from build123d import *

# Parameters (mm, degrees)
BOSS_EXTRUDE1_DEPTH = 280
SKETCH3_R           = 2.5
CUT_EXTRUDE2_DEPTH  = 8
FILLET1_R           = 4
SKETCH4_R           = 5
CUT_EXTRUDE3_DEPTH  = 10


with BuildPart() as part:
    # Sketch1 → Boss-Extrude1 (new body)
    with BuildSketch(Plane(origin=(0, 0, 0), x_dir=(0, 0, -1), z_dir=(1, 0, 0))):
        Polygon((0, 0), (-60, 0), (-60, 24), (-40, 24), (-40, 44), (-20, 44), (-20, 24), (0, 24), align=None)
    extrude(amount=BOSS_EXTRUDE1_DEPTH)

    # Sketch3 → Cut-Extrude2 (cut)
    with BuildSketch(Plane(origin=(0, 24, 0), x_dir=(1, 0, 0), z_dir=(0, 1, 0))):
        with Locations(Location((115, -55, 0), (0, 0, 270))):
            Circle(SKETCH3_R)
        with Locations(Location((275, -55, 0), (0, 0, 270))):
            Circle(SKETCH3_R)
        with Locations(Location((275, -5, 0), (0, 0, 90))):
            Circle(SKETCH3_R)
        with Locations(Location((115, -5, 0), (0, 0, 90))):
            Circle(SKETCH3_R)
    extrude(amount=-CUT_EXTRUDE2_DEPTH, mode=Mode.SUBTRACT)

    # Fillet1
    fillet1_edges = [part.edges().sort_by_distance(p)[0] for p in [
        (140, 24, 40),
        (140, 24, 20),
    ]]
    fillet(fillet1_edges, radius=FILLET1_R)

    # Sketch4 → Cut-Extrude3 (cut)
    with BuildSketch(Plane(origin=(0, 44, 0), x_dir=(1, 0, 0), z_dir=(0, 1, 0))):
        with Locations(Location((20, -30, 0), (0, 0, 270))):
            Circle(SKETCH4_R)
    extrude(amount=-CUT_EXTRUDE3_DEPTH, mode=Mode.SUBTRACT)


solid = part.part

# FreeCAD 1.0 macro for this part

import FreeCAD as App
import Part
import Sketcher


def edges_at(feature, points):
    """Names of the edges that pass closest to the given points."""
    edges = feature.Shape.Edges
    near = lambda p: min(range(len(edges)), key=lambda i: edges[i].distToShape(Part.Vertex(*p))[0])
    return sorted({f"Edge{near(p) + 1}" for p in points})

doc = App.newDocument("Part")
body = doc.addObject("PartDesign::Body", "Body")

sketch1 = body.newObject("Sketcher::SketchObject", "Sketch")
sketch1.AttachmentSupport = (doc.getObject("YZ_Plane"), [""])
sketch1.MapMode = "FlatFace"
sketch1.addGeometry(Part.LineSegment(App.Vector(0, 60, 0), App.Vector(0, 0, 0)), False)
sketch1.addGeometry(Part.LineSegment(App.Vector(0, 0, 0), App.Vector(24, 0, 0)), False)
sketch1.addGeometry(Part.LineSegment(App.Vector(24, 0, 0), App.Vector(24, 20, 0)), False)
sketch1.addGeometry(Part.LineSegment(App.Vector(24, 20, 0), App.Vector(44, 20, 0)), False)
sketch1.addGeometry(Part.LineSegment(App.Vector(44, 20, 0), App.Vector(44, 40, 0)), False)
sketch1.addGeometry(Part.LineSegment(App.Vector(44, 40, 0), App.Vector(24, 40, 0)), False)
sketch1.addGeometry(Part.LineSegment(App.Vector(24, 40, 0), App.Vector(24, 60, 0)), False)
sketch1.addGeometry(Part.LineSegment(App.Vector(24, 60, 0), App.Vector(0, 60, 0)), False)
sketch1.addConstraint(Sketcher.Constraint("Coincident", 0, 2, 1, 1))
sketch1.addConstraint(Sketcher.Constraint("Coincident", 1, 2, 2, 1))
sketch1.addConstraint(Sketcher.Constraint("Coincident", 2, 2, 3, 1))
sketch1.addConstraint(Sketcher.Constraint("Coincident", 3, 2, 4, 1))
sketch1.addConstraint(Sketcher.Constraint("Coincident", 4, 2, 5, 1))
sketch1.addConstraint(Sketcher.Constraint("Coincident", 5, 2, 6, 1))
sketch1.addConstraint(Sketcher.Constraint("Coincident", 6, 2, 7, 1))
sketch1.addConstraint(Sketcher.Constraint("Coincident", 7, 2, 0, 1))
sketch1.addConstraint(Sketcher.Constraint("Vertical", 0))
sketch1.addConstraint(Sketcher.Constraint("Horizontal", 1))
sketch1.addConstraint(Sketcher.Constraint("Vertical", 2))
sketch1.addConstraint(Sketcher.Constraint("Horizontal", 3))
sketch1.addConstraint(Sketcher.Constraint("Vertical", 4))
sketch1.addConstraint(Sketcher.Constraint("Horizontal", 5))
sketch1.addConstraint(Sketcher.Constraint("Vertical", 6))
sketch1.addConstraint(Sketcher.Constraint("Horizontal", 7))
sketch1.addConstraint(Sketcher.Constraint("Coincident", 0, 2, -1, 1))
sketch1.addConstraint(Sketcher.Constraint("Vertical", 2, 2, 5, 2))
sketch1.addConstraint(Sketcher.Constraint("Equal", 5, 2))
sketch1.addConstraint(Sketcher.Constraint("Equal", 2, 4))
sketch1.addConstraint(Sketcher.Constraint("Equal", 4, 6))
sketch1.addConstraint(Sketcher.Constraint("DistanceX", 1, 1, 1, 2, 24.0))
sketch1.addConstraint(Sketcher.Constraint("DistanceX", 3, 1, 3, 2, 20.0))
pad1 = body.newObject("PartDesign::Pad", "Pad")
pad1.Profile = sketch1
pad1.Length = 280

sketch2 = body.newObject("Sketcher::SketchObject", "Sketch001")
sketch2.AttachmentSupport = (doc.getObject("XZ_Plane"), [""])
sketch2.MapMode = "FlatFace"
sketch2.AttachmentOffset = App.Placement(App.Vector(0, 0, -24), App.Rotation())
sketch2.addGeometry(Part.Circle(App.Vector(115, 55, 0), App.Vector(0, 0, 1), 2.5), False)
sketch2.addGeometry(Part.Circle(App.Vector(275, 55, 0), App.Vector(0, 0, 1), 2.5), False)
sketch2.addGeometry(Part.Circle(App.Vector(275, 5, 0), App.Vector(0, 0, 1), 2.5), False)
sketch2.addGeometry(Part.Circle(App.Vector(115, 5, 0), App.Vector(0, 0, 1), 2.5), False)
sketch2.addConstraint(Sketcher.Constraint("Equal", 0, 1))
sketch2.addConstraint(Sketcher.Constraint("Equal", 1, 2))
sketch2.addConstraint(Sketcher.Constraint("Equal", 2, 3))
sketch2.addConstraint(Sketcher.Constraint("Horizontal", 0, 3, 1, 3))
sketch2.addConstraint(Sketcher.Constraint("Horizontal", 2, 3, 3, 3))
sketch2.addConstraint(Sketcher.Constraint("Vertical", 1, 3, 2, 3))
sketch2.addConstraint(Sketcher.Constraint("Vertical", 0, 3, 3, 3))
sketch2.addConstraint(Sketcher.Constraint("Diameter", 0, 5.0))
sketch2.addConstraint(Sketcher.Constraint("DistanceX", -1, 1, 0, 3, 115.0))
sketch2.addConstraint(Sketcher.Constraint("DistanceY", -1, 1, 0, 3, 55.0))
sketch2.addConstraint(Sketcher.Constraint("DistanceX", -1, 1, 1, 3, 275.0))
sketch2.addConstraint(Sketcher.Constraint("DistanceY", -1, 1, 2, 3, 5.0))
pocket1 = body.newObject("PartDesign::Pocket", "Pocket")
pocket1.Profile = sketch2
pocket1.Length = 8
pocket1.Reversed = True
doc.recompute()

fillet = body.newObject("PartDesign::Fillet", "Fillet")
fillet.Base = (pocket1, edges_at(pocket1, [(140, 24, 40), (140, 24, 20)]))
fillet.Radius = 4

sketch3 = body.newObject("Sketcher::SketchObject", "Sketch002")
sketch3.AttachmentSupport = (doc.getObject("XZ_Plane"), [""])
sketch3.MapMode = "FlatFace"
sketch3.AttachmentOffset = App.Placement(App.Vector(0, 0, -44), App.Rotation())
sketch3.addGeometry(Part.Circle(App.Vector(20, 30, 0), App.Vector(0, 0, 1), 5), False)
sketch3.addConstraint(Sketcher.Constraint("Diameter", 0, 10.0))
sketch3.addConstraint(Sketcher.Constraint("DistanceX", -1, 1, 0, 3, 20.0))
sketch3.addConstraint(Sketcher.Constraint("DistanceY", -1, 1, 0, 3, 30.0))
pocket2 = body.newObject("PartDesign::Pocket", "Pocket001")
pocket2.Profile = sketch3
pocket2.Length = 10
pocket2.Reversed = True

doc.recompute()
